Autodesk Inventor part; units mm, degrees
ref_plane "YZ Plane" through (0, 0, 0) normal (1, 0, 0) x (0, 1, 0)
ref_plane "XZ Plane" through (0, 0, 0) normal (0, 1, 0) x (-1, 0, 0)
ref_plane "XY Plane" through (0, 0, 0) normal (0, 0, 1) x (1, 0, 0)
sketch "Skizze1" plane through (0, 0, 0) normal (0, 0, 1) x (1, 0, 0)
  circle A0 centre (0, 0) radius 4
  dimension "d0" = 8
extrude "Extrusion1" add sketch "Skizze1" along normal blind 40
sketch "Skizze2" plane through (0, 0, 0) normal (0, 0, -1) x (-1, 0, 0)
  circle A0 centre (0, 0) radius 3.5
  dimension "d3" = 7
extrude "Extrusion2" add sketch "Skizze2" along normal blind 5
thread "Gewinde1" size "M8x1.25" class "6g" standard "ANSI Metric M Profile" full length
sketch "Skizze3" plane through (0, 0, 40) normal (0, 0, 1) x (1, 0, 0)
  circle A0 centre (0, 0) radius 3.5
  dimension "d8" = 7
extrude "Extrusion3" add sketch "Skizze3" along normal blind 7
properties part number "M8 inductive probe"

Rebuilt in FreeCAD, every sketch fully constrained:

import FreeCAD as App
import Part
import Sketcher
from FreeCAD import Vector

doc = App.newDocument("Part")
body = doc.addObject("PartDesign::Body", "Body")

# Sketch on XY plane
sketch1 = body.newObject("Sketcher::SketchObject", "Sketch")
sketch1.AttachmentSupport = (doc.getObject("XY_Plane"), [""])
sketch1.MapMode = "FlatFace"
sketch1.addGeometry(Part.Circle(Vector(0, 0, 0), Vector(0, 0, 1), 4), False)
sketch1.addConstraint([
    Sketcher.Constraint("Coincident", 0, 3, -1, 1),
    Sketcher.Constraint("Diameter", 0, 8.0),
])
pad1 = body.newObject("PartDesign::Pad", "Pad")
pad1.Profile = sketch1
pad1.Length = 40

# Sketch on XY plane
sketch2 = body.newObject("Sketcher::SketchObject", "Sketch001")
sketch2.AttachmentSupport = (doc.getObject("XY_Plane"), [""])
sketch2.MapMode = "FlatFace"
sketch2.addGeometry(Part.Circle(Vector(0, 0, 0), Vector(0, 0, 1), 3.5), False)
sketch2.addConstraint([
    Sketcher.Constraint("Coincident", 0, 3, -1, 1),
    Sketcher.Constraint("Diameter", 0, 7.0),
])
pad2 = body.newObject("PartDesign::Pad", "Pad001")
pad2.Profile = sketch2
pad2.Length = 5
pad2.Reversed = True

# Sketch on XY plane
sketch3 = body.newObject("Sketcher::SketchObject", "Sketch002")
sketch3.AttachmentSupport = (doc.getObject("XY_Plane"), [""])
sketch3.MapMode = "FlatFace"
sketch3.AttachmentOffset = App.Placement(Vector(0, 0, 40), App.Rotation())
sketch3.addGeometry(Part.Circle(Vector(0, 0, 0), Vector(0, 0, 1), 3.5), False)
sketch3.addConstraint([
    Sketcher.Constraint("Coincident", 0, 3, -1, 1),
    Sketcher.Constraint("Diameter", 0, 7.0),
])
pad3 = body.newObject("PartDesign::Pad", "Pad002")
pad3.Profile = sketch3
pad3.Length = 7

doc.recompute()
